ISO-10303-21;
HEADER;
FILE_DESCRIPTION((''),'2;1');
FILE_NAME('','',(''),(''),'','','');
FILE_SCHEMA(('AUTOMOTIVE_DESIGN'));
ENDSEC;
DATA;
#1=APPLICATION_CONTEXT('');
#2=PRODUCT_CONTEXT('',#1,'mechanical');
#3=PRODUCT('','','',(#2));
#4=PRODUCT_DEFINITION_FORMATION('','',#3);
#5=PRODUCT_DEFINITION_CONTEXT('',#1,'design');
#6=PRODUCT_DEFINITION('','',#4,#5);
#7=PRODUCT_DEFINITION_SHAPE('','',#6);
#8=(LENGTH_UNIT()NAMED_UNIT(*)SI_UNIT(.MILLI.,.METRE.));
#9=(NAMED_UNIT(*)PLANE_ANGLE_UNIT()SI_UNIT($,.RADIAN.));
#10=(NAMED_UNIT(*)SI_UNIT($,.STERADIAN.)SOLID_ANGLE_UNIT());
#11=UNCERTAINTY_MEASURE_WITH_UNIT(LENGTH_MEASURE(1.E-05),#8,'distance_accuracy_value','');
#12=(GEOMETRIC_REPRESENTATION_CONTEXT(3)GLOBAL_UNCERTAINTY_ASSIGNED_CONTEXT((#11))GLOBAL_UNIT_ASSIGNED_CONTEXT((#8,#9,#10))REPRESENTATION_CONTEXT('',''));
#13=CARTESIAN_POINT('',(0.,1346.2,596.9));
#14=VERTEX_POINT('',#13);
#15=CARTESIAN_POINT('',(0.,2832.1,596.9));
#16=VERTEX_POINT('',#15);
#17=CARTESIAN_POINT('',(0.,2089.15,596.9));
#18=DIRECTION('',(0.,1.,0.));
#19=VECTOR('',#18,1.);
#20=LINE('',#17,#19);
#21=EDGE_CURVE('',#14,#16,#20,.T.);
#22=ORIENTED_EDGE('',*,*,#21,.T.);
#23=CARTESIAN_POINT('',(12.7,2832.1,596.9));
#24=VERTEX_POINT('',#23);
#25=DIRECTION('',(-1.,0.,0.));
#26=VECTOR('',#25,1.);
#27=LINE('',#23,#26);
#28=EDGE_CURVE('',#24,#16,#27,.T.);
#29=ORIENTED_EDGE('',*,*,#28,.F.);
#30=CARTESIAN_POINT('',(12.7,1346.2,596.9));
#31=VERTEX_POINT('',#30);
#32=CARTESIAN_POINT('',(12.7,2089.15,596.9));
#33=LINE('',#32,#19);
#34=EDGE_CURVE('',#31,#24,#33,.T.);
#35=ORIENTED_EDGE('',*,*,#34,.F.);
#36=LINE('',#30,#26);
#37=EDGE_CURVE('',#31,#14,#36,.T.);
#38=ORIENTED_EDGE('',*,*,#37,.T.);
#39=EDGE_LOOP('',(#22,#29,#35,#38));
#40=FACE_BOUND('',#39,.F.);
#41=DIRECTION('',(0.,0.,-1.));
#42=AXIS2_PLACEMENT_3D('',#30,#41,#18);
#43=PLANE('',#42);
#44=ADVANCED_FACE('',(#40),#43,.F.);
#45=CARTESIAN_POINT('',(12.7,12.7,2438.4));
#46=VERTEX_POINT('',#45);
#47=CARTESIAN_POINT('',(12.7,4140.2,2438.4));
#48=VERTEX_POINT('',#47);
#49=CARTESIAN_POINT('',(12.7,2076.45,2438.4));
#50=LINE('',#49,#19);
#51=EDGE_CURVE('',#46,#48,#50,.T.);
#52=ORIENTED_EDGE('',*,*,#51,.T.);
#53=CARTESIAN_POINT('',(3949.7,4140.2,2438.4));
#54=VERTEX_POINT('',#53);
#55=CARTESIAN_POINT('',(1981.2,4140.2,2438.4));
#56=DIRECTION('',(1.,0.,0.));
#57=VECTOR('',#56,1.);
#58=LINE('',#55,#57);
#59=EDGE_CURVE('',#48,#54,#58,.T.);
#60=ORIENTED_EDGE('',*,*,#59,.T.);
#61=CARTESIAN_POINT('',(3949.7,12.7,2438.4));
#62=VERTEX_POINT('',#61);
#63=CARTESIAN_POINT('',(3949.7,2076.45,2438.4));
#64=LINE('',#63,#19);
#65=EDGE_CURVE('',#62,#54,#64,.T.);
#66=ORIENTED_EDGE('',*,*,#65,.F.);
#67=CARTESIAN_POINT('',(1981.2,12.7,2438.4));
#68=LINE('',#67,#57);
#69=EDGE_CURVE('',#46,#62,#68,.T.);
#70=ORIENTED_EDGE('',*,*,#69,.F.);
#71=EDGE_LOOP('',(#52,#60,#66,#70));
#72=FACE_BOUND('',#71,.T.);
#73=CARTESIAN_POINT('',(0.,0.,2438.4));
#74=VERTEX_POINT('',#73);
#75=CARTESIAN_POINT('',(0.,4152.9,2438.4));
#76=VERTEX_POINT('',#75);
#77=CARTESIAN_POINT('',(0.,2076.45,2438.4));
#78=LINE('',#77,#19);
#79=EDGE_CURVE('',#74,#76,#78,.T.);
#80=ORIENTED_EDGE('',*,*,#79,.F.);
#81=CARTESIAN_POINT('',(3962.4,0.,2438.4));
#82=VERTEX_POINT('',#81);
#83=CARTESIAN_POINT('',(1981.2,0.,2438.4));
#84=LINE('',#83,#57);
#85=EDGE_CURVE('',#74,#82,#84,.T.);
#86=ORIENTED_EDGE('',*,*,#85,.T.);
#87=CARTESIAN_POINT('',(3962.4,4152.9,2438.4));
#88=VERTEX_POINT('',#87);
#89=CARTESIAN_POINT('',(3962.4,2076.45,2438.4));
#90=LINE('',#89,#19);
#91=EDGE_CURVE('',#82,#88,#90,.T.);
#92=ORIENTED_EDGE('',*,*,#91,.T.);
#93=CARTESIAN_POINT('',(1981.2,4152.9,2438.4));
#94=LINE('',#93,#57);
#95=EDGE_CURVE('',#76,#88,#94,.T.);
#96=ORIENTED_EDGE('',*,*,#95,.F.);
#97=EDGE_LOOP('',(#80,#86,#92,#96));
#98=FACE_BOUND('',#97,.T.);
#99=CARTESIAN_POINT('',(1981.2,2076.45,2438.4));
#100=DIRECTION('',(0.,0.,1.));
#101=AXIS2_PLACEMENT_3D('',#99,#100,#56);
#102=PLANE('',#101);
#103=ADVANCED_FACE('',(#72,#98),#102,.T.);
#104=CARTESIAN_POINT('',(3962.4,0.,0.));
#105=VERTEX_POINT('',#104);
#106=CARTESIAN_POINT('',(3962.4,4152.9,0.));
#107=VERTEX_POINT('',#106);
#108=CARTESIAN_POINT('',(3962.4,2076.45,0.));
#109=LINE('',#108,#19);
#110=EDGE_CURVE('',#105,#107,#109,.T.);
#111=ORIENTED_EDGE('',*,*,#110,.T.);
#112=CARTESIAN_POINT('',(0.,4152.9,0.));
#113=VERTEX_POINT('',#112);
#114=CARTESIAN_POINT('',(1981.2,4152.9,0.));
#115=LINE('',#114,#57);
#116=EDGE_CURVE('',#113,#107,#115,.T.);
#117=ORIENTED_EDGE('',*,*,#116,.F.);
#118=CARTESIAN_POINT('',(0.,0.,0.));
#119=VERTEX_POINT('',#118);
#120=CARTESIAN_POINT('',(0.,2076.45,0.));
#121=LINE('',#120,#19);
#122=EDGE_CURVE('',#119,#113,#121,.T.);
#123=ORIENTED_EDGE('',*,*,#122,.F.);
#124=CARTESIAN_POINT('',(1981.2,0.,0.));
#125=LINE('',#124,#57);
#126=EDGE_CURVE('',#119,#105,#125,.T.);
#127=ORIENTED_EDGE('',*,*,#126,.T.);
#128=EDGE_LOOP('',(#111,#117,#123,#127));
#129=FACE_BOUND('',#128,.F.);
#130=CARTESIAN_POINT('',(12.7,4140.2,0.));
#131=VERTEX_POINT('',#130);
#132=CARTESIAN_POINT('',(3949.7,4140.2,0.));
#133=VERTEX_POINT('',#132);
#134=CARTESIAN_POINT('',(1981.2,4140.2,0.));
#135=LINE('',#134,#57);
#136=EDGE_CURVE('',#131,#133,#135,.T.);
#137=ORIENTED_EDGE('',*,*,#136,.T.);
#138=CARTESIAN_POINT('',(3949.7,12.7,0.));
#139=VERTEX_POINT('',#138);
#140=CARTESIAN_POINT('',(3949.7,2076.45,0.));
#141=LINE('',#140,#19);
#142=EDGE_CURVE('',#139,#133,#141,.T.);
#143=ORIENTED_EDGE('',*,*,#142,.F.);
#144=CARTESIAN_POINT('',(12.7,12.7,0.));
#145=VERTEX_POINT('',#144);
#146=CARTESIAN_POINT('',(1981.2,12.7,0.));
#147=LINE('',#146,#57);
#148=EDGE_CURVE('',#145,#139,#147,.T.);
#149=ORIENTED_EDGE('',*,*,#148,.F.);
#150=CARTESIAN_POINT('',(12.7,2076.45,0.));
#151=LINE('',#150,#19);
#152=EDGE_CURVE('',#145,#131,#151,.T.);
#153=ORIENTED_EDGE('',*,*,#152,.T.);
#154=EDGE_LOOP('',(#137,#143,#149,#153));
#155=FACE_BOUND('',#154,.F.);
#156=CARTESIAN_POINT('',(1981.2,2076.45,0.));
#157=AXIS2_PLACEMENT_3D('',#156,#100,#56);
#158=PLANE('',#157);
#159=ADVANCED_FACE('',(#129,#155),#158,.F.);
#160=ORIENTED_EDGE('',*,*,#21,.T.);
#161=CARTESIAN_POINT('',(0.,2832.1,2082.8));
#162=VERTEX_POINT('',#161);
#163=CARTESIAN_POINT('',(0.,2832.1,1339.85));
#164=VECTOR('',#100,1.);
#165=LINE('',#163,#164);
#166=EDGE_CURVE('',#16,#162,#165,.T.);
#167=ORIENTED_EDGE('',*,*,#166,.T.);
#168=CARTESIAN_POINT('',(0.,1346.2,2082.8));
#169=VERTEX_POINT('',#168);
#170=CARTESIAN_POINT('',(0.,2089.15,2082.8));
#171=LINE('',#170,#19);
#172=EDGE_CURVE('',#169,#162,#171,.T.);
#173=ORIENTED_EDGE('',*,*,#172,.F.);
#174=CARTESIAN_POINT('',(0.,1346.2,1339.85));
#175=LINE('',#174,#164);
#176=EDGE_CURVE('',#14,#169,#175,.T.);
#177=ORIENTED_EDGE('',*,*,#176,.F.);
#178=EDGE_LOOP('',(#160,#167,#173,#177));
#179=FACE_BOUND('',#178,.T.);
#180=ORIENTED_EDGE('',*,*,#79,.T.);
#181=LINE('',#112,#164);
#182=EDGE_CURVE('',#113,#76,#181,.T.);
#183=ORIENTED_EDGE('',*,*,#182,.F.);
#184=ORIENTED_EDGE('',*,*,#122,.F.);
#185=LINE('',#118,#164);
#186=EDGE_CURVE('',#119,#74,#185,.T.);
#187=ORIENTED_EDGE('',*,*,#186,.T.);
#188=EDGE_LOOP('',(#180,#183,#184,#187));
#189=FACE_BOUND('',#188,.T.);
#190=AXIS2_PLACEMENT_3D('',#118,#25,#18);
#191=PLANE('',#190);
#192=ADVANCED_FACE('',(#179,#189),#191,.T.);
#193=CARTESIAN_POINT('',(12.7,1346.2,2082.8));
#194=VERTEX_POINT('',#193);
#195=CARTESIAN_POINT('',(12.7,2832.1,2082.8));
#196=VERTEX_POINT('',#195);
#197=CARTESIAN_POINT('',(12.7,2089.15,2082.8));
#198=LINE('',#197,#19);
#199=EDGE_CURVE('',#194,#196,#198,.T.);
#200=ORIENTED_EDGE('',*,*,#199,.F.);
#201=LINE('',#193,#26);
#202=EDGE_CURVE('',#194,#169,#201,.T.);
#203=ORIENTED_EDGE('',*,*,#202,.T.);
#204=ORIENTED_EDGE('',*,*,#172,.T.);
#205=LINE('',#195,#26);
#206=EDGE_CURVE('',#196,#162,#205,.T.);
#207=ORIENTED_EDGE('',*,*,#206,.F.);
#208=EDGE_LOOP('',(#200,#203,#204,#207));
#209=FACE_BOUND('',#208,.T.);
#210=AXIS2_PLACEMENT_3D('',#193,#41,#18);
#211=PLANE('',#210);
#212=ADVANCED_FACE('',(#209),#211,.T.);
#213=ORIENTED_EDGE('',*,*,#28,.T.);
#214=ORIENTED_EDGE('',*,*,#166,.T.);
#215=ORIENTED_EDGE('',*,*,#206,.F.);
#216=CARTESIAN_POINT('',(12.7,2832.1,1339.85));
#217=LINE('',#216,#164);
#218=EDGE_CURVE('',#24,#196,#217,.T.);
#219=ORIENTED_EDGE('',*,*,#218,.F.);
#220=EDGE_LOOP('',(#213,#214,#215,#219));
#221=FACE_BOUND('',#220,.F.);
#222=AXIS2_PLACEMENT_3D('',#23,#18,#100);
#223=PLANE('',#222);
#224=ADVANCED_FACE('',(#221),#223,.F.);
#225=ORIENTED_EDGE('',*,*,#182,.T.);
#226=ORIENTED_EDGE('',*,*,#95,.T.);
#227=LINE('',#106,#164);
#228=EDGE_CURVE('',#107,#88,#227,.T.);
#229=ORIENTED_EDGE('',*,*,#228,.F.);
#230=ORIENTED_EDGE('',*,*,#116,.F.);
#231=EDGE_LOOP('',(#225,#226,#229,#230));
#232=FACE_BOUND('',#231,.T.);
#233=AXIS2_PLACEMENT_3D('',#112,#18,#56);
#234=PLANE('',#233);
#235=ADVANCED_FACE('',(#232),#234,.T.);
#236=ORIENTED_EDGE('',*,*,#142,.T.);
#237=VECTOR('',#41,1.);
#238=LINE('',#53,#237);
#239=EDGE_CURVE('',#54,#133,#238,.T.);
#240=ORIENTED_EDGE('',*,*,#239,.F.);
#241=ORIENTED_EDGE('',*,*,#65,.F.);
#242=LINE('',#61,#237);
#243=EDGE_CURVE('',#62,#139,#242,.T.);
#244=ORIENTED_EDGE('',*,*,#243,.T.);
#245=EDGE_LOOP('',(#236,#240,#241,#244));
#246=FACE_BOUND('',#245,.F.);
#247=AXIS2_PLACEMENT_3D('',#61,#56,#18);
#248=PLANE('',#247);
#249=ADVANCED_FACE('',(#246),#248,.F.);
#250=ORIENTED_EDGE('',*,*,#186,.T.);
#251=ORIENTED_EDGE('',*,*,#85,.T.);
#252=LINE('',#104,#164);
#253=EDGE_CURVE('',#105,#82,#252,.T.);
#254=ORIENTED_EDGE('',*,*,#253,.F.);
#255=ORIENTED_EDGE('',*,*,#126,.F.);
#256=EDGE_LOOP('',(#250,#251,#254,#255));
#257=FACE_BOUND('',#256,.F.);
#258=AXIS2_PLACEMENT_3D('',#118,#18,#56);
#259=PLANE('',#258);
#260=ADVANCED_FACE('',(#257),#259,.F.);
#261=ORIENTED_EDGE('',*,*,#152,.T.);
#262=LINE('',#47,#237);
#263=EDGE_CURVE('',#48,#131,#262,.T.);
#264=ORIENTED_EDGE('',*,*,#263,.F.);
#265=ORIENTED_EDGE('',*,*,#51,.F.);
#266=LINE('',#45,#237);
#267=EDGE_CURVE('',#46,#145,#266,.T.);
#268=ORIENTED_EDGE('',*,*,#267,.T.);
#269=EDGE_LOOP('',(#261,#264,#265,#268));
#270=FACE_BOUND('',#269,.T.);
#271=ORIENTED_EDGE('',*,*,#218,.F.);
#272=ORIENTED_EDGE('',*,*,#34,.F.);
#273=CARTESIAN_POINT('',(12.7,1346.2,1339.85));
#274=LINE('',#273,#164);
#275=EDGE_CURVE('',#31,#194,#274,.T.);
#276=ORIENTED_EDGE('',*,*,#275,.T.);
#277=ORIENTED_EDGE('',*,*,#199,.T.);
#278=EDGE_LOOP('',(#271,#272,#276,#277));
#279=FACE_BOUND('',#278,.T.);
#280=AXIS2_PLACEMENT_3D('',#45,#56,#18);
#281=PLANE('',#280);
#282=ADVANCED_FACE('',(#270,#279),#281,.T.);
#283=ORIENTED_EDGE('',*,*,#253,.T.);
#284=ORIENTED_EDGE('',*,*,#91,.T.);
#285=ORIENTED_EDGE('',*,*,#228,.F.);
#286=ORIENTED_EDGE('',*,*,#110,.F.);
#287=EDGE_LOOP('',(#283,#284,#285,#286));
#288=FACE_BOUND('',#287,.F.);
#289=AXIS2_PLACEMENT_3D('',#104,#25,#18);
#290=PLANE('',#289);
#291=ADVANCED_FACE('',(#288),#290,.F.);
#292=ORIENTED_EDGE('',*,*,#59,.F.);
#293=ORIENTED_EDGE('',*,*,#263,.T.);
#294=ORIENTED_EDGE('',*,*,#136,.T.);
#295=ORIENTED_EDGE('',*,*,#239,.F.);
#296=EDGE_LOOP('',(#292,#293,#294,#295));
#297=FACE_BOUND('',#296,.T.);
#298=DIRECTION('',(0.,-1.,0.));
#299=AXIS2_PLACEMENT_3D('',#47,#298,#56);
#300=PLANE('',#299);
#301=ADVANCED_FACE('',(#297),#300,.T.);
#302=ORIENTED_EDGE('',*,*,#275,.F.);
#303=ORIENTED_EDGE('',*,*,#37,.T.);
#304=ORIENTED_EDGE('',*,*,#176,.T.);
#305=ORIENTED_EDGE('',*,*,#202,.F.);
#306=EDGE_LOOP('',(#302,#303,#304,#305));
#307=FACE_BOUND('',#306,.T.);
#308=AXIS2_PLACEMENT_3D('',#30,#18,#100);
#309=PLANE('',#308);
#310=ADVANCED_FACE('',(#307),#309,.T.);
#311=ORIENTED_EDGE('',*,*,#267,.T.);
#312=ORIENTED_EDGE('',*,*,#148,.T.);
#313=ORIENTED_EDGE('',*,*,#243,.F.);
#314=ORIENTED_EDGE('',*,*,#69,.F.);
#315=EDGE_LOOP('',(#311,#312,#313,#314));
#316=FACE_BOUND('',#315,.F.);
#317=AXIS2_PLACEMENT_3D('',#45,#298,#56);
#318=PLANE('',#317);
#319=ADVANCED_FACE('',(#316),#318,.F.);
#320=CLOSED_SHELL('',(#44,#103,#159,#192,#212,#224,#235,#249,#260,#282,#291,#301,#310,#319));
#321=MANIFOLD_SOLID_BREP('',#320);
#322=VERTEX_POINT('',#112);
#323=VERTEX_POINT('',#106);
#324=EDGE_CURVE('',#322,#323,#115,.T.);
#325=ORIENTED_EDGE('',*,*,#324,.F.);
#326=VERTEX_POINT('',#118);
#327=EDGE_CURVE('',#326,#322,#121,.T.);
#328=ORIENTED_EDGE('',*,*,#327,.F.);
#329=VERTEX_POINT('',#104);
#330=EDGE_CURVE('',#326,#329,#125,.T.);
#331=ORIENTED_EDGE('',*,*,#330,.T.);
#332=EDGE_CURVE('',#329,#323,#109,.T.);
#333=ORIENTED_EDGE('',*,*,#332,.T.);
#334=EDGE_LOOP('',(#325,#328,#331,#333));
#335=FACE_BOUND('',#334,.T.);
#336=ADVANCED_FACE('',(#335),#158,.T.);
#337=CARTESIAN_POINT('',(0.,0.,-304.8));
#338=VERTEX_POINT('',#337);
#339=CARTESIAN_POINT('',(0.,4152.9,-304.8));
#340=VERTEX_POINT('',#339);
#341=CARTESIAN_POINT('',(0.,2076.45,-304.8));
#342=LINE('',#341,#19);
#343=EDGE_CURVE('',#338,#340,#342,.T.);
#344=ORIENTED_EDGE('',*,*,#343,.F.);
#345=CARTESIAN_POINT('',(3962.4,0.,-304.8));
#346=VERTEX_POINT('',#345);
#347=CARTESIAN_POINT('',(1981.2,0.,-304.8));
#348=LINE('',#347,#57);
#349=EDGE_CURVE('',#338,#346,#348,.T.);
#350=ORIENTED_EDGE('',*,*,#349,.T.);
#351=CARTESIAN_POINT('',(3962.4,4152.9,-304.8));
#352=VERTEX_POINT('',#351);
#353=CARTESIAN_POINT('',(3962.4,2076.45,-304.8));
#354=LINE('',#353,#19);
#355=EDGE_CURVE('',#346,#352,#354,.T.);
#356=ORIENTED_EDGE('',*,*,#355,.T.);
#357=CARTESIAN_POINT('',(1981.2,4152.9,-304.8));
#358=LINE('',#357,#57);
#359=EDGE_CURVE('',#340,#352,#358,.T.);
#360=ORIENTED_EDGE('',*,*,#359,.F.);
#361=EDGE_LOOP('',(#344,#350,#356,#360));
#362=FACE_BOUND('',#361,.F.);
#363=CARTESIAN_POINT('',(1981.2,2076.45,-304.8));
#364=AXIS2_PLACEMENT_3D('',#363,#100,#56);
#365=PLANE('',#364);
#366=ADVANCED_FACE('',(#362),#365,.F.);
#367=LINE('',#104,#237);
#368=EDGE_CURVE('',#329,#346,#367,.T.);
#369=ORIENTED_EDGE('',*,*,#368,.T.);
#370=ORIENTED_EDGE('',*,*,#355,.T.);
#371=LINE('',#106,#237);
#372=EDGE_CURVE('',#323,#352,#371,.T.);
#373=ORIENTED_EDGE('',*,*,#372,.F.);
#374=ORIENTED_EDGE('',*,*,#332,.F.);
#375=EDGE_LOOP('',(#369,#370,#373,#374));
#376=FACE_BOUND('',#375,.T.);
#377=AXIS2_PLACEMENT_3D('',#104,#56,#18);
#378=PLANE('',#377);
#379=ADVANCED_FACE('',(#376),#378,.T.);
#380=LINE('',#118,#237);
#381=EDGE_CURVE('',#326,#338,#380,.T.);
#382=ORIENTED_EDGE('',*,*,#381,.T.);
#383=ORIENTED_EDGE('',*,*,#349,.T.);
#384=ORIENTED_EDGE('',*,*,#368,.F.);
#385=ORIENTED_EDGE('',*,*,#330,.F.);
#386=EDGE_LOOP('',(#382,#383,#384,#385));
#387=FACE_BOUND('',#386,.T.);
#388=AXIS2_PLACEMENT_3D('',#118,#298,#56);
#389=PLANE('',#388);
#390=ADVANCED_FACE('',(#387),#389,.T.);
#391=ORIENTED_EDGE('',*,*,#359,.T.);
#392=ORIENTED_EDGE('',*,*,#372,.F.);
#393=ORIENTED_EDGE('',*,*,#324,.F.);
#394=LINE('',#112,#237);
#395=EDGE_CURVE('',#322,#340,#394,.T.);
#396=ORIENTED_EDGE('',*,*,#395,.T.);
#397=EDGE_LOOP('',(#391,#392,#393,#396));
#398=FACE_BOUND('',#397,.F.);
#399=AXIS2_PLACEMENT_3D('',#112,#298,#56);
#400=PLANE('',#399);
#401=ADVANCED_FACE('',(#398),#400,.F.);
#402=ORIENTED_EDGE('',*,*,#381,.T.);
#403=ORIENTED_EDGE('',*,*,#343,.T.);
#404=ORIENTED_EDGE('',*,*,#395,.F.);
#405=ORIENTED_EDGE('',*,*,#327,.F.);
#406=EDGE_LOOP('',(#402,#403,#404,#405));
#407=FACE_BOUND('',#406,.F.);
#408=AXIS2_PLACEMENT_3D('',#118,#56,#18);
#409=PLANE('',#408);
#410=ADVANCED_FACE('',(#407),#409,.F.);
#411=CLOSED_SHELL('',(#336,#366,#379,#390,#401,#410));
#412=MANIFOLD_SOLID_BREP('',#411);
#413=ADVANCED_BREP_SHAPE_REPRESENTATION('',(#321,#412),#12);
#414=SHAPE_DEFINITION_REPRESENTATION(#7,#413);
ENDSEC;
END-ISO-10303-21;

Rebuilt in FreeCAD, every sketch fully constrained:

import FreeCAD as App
import Part
import Sketcher
from FreeCAD import Vector
Q = App.Units.Quantity


def add_polygon(sketch, points):
    """Adds a closed chain of lines whose ends are joined by coincident constraints."""
    first, n = sketch.GeometryCount, len(points)
    for a, b in zip(points, points[1:] + points[:1]):
        sketch.addGeometry(Part.LineSegment(App.Vector(*a, 0), App.Vector(*b, 0)), False)
    for i in range(n):
        sketch.addConstraint(Sketcher.Constraint("Coincident", first + i, 2, first + (i + 1) % n, 1))

doc = App.newDocument("Part")
body = doc.addObject("PartDesign::Body", "Body")

# Sketch on XY plane
sketch1 = body.newObject("Sketcher::SketchObject", "Sketch")
sketch1.AttachmentSupport = (doc.getObject("XY_Plane"), [""])
sketch1.MapMode = "FlatFace"
add_polygon(sketch1, [(0, 4152.9), (0, 0), (3962.4, 0), (3962.4, 4152.9)])  # lines 0-3
sketch1.addConstraint(Sketcher.Constraint("Vertical", 0))
sketch1.addConstraint(Sketcher.Constraint("Horizontal", 1))
sketch1.addConstraint(Sketcher.Constraint("Vertical", 2))
sketch1.addConstraint(Sketcher.Constraint("Horizontal", 3))
sketch1.addConstraint(Sketcher.Constraint("Coincident", 0, 2, -1, 1))
sketch1.addConstraint(Sketcher.Constraint("DistanceX", 1, 1, 1, 2, Q("156 in")))
sketch1.addConstraint(Sketcher.Constraint("DistanceY", 0, 2, 0, 1, Q("163.5 in")))
pad1 = body.newObject("PartDesign::Pad", "Pad")
pad1.Profile = sketch1
pad1.Length = Q("12 in")
pad1.Reversed = True
body2 = doc.addObject("PartDesign::Body", "Body001")

# Sketch on XY plane
sketch2 = body2.newObject("Sketcher::SketchObject", "Sketch001")
sketch2.AttachmentSupport = (doc.getObject("XY_Plane001"), [""])
sketch2.MapMode = "FlatFace"
add_polygon(sketch2, [(0, 4152.9), (0, 0), (3962.4, 0), (3962.4, 4152.9)])  # lines 0-3
sketch2.addConstraint(Sketcher.Constraint("Vertical", 0))
sketch2.addConstraint(Sketcher.Constraint("Horizontal", 1))
sketch2.addConstraint(Sketcher.Constraint("Vertical", 2))
sketch2.addConstraint(Sketcher.Constraint("Horizontal", 3))
sketch2.addConstraint(Sketcher.Constraint("Coincident", 0, 2, -1, 1))
sketch2.addConstraint(Sketcher.Constraint("DistanceX", 1, 1, 1, 2, Q("156 in")))
sketch2.addConstraint(Sketcher.Constraint("DistanceY", 0, 2, 0, 1, Q("163.5 in")))
pad2 = body2.newObject("PartDesign::Pad", "Pad001")
pad2.Profile = sketch2
pad2.Length = Q("96 in")

# Sketch on XY plane
sketch3 = body2.newObject("Sketcher::SketchObject", "Sketch002")
sketch3.AttachmentSupport = (doc.getObject("XY_Plane001"), [""])
sketch3.MapMode = "FlatFace"
sketch3.AttachmentOffset = App.Placement(Vector(0, 0, 96 * 25.4), App.Rotation())
add_polygon(sketch3, [(12.7, 4140.2), (12.7, 12.7), (3949.7, 12.7), (3949.7, 4140.2)])  # lines 0-3
sketch3.addConstraint(Sketcher.Constraint("Vertical", 0))
sketch3.addConstraint(Sketcher.Constraint("Horizontal", 1))
sketch3.addConstraint(Sketcher.Constraint("Vertical", 2))
sketch3.addConstraint(Sketcher.Constraint("Horizontal", 3))
sketch3.addConstraint(Sketcher.Constraint("DistanceX", 1, 1, 1, 2, Q("155 in")))
sketch3.addConstraint(Sketcher.Constraint("DistanceY", 0, 2, 0, 1, Q("162.5 in")))
sketch3.addConstraint(Sketcher.Constraint("DistanceY", -1, 1, 2, 2, Q("163 in")))
sketch3.addConstraint(Sketcher.Constraint("DistanceX", -1, 1, 0, 2, Q("0.5 in")))
pocket1 = body2.newObject("PartDesign::Pocket", "Pocket")
pocket1.Profile = sketch3
pocket1.Type = "ThroughAll"

# Sketch on YZ plane
sketch4 = body2.newObject("Sketcher::SketchObject", "Sketch003")
sketch4.AttachmentSupport = (doc.getObject("YZ_Plane001"), [""])
sketch4.MapMode = "FlatFace"
sketch4.AttachmentOffset = App.Placement(Vector(0, 0, 0.5 * 25.4), App.Rotation())
add_polygon(sketch4, [(1346.2, 2082.8), (1346.2, 596.9), (2832.1, 596.9), (2832.1, 2082.8)])  # lines 0-3
sketch4.addConstraint(Sketcher.Constraint("Vertical", 0))
sketch4.addConstraint(Sketcher.Constraint("Horizontal", 1))
sketch4.addConstraint(Sketcher.Constraint("Vertical", 2))
sketch4.addConstraint(Sketcher.Constraint("Horizontal", 3))
sketch4.addConstraint(Sketcher.Constraint("Equal", 3, 0))
sketch4.addConstraint(Sketcher.Constraint("DistanceX", 1, 1, 1, 2, Q("58.5 in")))
sketch4.addConstraint(Sketcher.Constraint("DistanceX", -1, 1, 0, 2, Q("53 in")))
sketch4.addConstraint(Sketcher.Constraint("DistanceY", -1, 1, 2, 2, Q("82 in")))
pocket2 = body2.newObject("PartDesign::Pocket", "Pocket001")
pocket2.Profile = sketch4
pocket2.Type = "ThroughAll"

doc.recompute()
